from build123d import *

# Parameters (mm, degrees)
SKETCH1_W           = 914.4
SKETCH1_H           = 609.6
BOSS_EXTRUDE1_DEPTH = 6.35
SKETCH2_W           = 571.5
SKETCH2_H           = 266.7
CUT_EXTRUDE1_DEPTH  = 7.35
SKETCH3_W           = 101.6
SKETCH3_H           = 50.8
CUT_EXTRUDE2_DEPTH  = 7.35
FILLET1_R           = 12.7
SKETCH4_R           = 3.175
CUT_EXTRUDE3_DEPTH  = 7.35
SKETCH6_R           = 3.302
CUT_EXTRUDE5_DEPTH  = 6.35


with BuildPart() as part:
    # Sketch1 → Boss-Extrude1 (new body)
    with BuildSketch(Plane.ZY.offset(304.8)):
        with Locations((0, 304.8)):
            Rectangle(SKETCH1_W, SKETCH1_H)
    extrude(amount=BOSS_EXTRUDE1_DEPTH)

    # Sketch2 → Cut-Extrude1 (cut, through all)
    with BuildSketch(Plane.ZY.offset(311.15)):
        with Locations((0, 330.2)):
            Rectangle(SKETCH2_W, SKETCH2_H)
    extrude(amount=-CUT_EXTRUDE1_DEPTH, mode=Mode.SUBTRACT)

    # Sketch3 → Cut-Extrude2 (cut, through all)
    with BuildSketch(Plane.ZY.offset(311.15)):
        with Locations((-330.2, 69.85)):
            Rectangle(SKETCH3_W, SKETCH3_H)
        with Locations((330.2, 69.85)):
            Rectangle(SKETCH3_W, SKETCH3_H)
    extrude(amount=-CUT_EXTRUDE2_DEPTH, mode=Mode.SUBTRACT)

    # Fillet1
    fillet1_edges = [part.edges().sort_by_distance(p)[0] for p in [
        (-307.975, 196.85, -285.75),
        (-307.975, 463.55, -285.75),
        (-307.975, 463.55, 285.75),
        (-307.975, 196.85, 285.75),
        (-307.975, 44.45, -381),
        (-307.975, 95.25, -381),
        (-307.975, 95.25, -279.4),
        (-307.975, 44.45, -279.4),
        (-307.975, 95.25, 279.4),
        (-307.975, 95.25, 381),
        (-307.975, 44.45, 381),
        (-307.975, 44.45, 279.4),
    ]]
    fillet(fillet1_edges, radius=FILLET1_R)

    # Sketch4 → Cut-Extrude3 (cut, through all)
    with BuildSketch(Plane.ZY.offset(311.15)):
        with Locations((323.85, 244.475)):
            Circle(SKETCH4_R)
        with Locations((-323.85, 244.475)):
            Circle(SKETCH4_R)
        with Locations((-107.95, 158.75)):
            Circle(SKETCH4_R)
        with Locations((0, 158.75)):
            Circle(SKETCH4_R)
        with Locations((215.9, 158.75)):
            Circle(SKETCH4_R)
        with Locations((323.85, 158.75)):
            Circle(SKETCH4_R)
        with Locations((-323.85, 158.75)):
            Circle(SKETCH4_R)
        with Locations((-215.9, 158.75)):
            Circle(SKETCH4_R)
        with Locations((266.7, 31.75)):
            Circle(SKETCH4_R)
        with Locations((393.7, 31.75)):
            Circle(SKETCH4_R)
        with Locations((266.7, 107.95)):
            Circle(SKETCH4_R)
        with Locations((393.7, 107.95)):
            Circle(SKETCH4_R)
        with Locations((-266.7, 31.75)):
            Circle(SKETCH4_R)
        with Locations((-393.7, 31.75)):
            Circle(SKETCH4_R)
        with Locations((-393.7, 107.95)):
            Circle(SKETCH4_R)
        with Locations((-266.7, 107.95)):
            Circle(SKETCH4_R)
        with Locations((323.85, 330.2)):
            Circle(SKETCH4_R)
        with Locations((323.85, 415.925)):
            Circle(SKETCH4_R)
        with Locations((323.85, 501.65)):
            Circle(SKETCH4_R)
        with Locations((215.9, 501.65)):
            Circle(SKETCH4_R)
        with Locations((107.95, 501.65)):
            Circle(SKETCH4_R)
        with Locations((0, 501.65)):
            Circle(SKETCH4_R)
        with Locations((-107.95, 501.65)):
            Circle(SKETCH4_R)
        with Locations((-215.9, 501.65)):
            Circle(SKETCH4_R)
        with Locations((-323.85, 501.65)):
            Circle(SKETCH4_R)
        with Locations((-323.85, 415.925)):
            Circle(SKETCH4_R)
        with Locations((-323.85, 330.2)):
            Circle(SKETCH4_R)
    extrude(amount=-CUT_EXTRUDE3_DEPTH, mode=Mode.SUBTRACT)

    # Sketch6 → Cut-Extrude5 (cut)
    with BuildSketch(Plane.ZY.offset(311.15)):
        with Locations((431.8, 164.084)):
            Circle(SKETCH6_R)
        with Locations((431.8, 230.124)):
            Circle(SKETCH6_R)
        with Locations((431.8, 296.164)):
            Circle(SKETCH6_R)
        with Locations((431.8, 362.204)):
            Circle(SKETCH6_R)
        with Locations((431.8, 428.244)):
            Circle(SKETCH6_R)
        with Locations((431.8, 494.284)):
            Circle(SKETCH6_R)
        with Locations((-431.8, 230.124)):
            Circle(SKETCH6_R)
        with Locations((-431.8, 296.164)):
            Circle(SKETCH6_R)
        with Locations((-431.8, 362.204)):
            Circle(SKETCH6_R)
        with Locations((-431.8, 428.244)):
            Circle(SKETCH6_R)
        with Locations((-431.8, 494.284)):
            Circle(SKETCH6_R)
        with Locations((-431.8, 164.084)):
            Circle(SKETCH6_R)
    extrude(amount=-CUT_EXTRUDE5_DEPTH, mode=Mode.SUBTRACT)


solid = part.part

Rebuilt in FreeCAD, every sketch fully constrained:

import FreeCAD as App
import Part
import Sketcher
from FreeCAD import Vector
Q = App.Units.Quantity


def edges_at(feature, points):
    """Names of the edges that pass closest to the given points."""
    edges = feature.Shape.Edges
    near = lambda p: min(range(len(edges)), key=lambda i: edges[i].distToShape(Part.Vertex(*p))[0])
    return sorted({f"Edge{near(p) + 1}" for p in points})


def add_polygon(sketch, points):
    """Adds a closed chain of lines whose ends are joined by coincident constraints."""
    first, n = sketch.GeometryCount, len(points)
    for a, b in zip(points, points[1:] + points[:1]):
        sketch.addGeometry(Part.LineSegment(App.Vector(*a, 0), App.Vector(*b, 0)), False)
    for i in range(n):
        sketch.addConstraint(Sketcher.Constraint("Coincident", first + i, 2, first + (i + 1) % n, 1))

doc = App.newDocument("Part")
body = doc.addObject("PartDesign::Body", "Body")

# Sketch on YZ plane
sketch1 = body.newObject("Sketcher::SketchObject", "Sketch")
sketch1.AttachmentSupport = (doc.getObject("YZ_Plane"), [""])
sketch1.MapMode = "FlatFace"
sketch1.AttachmentOffset = App.Placement(Vector(0, 0, -12 * 25.4), App.Rotation())
add_polygon(sketch1, [(610, -457), (0, -457), (0, 457), (610, 457)])  # lines 0-3
sketch1.addConstraint([
    Sketcher.Constraint("Horizontal", 0),
    Sketcher.Constraint("Vertical", 1),
    Sketcher.Constraint("Horizontal", 2),
    Sketcher.Constraint("Vertical", 3),
    Sketcher.Constraint("Symmetric", 0, 2, 1, 2, -1, 1),
    Sketcher.Constraint("DistanceX", 0, 2, 0, 1, Q("24 in")),
    Sketcher.Constraint("DistanceY", 1, 1, 1, 2, Q("36 in")),
])
pad1 = body.newObject("PartDesign::Pad", "Pad")
pad1.Profile = sketch1
pad1.Length = Q("0.25 in")
pad1.Reversed = True

# Sketch on YZ plane
sketch2 = body.newObject("Sketcher::SketchObject", "Sketch001")
sketch2.AttachmentSupport = (doc.getObject("YZ_Plane"), [""])
sketch2.MapMode = "FlatFace"
sketch2.AttachmentOffset = App.Placement(Vector(0, 0, -12.25 * 25.4), App.Rotation())
add_polygon(sketch2, [(464, -286), (197, -286), (197, 286), (464, 286)])  # lines 0-3
sketch2.addConstraint([
    Sketcher.Constraint("Horizontal", 0),
    Sketcher.Constraint("Vertical", 1),
    Sketcher.Constraint("Horizontal", 2),
    Sketcher.Constraint("Vertical", 3),
    Sketcher.Constraint("DistanceX", 0, 2, 0, 1, Q("10.5 in")),
    Sketcher.Constraint("DistanceY", 1, 1, 1, 2, Q("22.5 in")),
    Sketcher.Constraint("DistanceX", -1, 1, 0, 2, Q("7.75 in")),
    Sketcher.Constraint("DistanceY", 0, 2, -1, 1, Q("11.25 in")),
])
pocket1 = body.newObject("PartDesign::Pocket", "Pocket")
pocket1.Profile = sketch2
pocket1.Type = "ThroughAll"
pocket1.Reversed = True

# Sketch on YZ plane
sketch3 = body.newObject("Sketcher::SketchObject", "Sketch002")
sketch3.AttachmentSupport = (doc.getObject("YZ_Plane"), [""])
sketch3.MapMode = "FlatFace"
sketch3.AttachmentOffset = App.Placement(Vector(0, 0, -12.25 * 25.4), App.Rotation())
add_polygon(sketch3, [(95, -381), (44, -381), (44, -279), (95, -279)])  # lines 0-3
add_polygon(sketch3, [(95, 279), (44, 279), (44, 381), (95, 381)])  # lines 4-7
sketch3.addConstraint([
    Sketcher.Constraint("Horizontal", 0),
    Sketcher.Constraint("Vertical", 1),
    Sketcher.Constraint("Horizontal", 2),
    Sketcher.Constraint("Vertical", 3),
    Sketcher.Constraint("Horizontal", 4),
    Sketcher.Constraint("Vertical", 5),
    Sketcher.Constraint("Horizontal", 6),
    Sketcher.Constraint("Vertical", 7),
    Sketcher.Constraint("Symmetric", 1, 2, 4, 2, -1),
    Sketcher.Constraint("Symmetric", 3, 2, 6, 2, -1),
    Sketcher.Constraint("DistanceX", 0, 2, 0, 1, Q("2 in")),
    Sketcher.Constraint("DistanceY", 1, 1, 1, 2, Q("4 in")),
    Sketcher.Constraint("DistanceY", 0, 2, -1, 1, Q("15 in")),
    Sketcher.Constraint("DistanceX", -1, 1, 0, 2, Q("1.75 in")),
])
pocket2 = body.newObject("PartDesign::Pocket", "Pocket001")
pocket2.Profile = sketch3
pocket2.Type = "ThroughAll"
pocket2.Reversed = True
doc.recompute()

fillet = body.newObject("PartDesign::Fillet", "Fillet")
fillet.Base = (pocket2, edges_at(pocket2, [
    (-307.975, 196.85, -285.75),
    (-307.975, 463.55, -285.75),
    (-307.975, 463.55, 285.75),
    (-307.975, 196.85, 285.75),
    (-307.975, 44.45, -381),
    (-307.975, 95.25, -381),
    (-307.975, 95.25, -279.4),
    (-307.975, 44.45, -279.4),
    (-307.975, 95.25, 279.4),
    (-307.975, 95.25, 381),
    (-307.975, 44.45, 381),
    (-307.975, 44.45, 279.4),
]))
fillet.Radius = Q("0.5 in")

# Sketch on YZ plane
sketch4 = body.newObject("Sketcher::SketchObject", "Sketch003")
sketch4.AttachmentSupport = (doc.getObject("YZ_Plane"), [""])
sketch4.MapMode = "FlatFace"
sketch4.AttachmentOffset = App.Placement(Vector(0, 0, -12.25 * 25.4), App.Rotation())
sketch4.addGeometry([
    Part.Circle(Vector(244.5, 323.9, 0), Vector(0, 0, 1), 3.2),  # 0
    Part.Circle(Vector(244.5, -323.9, 0), Vector(0, 0, 1), 3.2),  # 1
    Part.Circle(Vector(158.8, -108, 0), Vector(0, 0, 1), 3.2),  # 2
    Part.Circle(Vector(158.8, 0, 0), Vector(0, 0, 1), 3.2),  # 3
    Part.Circle(Vector(158.8, 215.9, 0), Vector(0, 0, 1), 3.2),  # 4
    Part.Circle(Vector(158.8, 323.9, 0), Vector(0, 0, 1), 3.2),  # 5
    Part.Circle(Vector(158.8, -323.9, 0), Vector(0, 0, 1), 3.2),  # 6
    Part.Circle(Vector(158.8, -215.9, 0), Vector(0, 0, 1), 3.2),  # 7
    Part.Circle(Vector(31.8, 266.7, 0), Vector(0, 0, 1), 3.2),  # 8
    Part.Circle(Vector(31.8, 393.7, 0), Vector(0, 0, 1), 3.2),  # 9
    Part.Circle(Vector(108, 266.7, 0), Vector(0, 0, 1), 3.2),  # 10
    Part.Circle(Vector(108, 393.7, 0), Vector(0, 0, 1), 3.2),  # 11
    Part.Circle(Vector(31.8, -266.7, 0), Vector(0, 0, 1), 3.2),  # 12
    Part.Circle(Vector(31.8, -393.7, 0), Vector(0, 0, 1), 3.2),  # 13
    Part.Circle(Vector(108, -393.7, 0), Vector(0, 0, 1), 3.2),  # 14
    Part.Circle(Vector(108, -266.7, 0), Vector(0, 0, 1), 3.2),  # 15
    Part.Circle(Vector(330.2, 323.9, 0), Vector(0, 0, 1), 3.2),  # 16
    Part.Circle(Vector(415.9, 323.9, 0), Vector(0, 0, 1), 3.2),  # 17
    Part.Circle(Vector(501.6, 323.9, 0), Vector(0, 0, 1), 3.2),  # 18
    Part.Circle(Vector(501.6, 215.9, 0), Vector(0, 0, 1), 3.2),  # 19
    Part.Circle(Vector(501.6, 108, 0), Vector(0, 0, 1), 3.2),  # 20
    Part.Circle(Vector(501.6, 0, 0), Vector(0, 0, 1), 3.2),  # 21
    Part.Circle(Vector(501.6, -108, 0), Vector(0, 0, 1), 3.2),  # 22
    Part.Circle(Vector(501.6, -215.9, 0), Vector(0, 0, 1), 3.2),  # 23
    Part.Circle(Vector(501.6, -323.9, 0), Vector(0, 0, 1), 3.2),  # 24
    Part.Circle(Vector(415.9, -323.9, 0), Vector(0, 0, 1), 3.2),  # 25
    Part.Circle(Vector(330.2, -323.9, 0), Vector(0, 0, 1), 3.2),  # 26
], False)
sketch4.addConstraint([
    Sketcher.Constraint("Equal", 0, 1),
    Sketcher.Constraint("Equal", 1, 2),
    Sketcher.Constraint("Equal", 2, 3),
    Sketcher.Constraint("Equal", 3, 4),
    Sketcher.Constraint("Equal", 4, 5),
    Sketcher.Constraint("Equal", 5, 6),
    Sketcher.Constraint("Equal", 6, 7),
    Sketcher.Constraint("Equal", 7, 8),
    Sketcher.Constraint("Equal", 8, 9),
    Sketcher.Constraint("Equal", 9, 10),
    Sketcher.Constraint("Equal", 10, 11),
    Sketcher.Constraint("Equal", 11, 12),
    Sketcher.Constraint("Equal", 12, 13),
    Sketcher.Constraint("Equal", 13, 14),
    Sketcher.Constraint("Equal", 14, 15),
    Sketcher.Constraint("Equal", 15, 16),
    Sketcher.Constraint("Equal", 16, 17),
    Sketcher.Constraint("Equal", 17, 18),
    Sketcher.Constraint("Equal", 18, 19),
    Sketcher.Constraint("Equal", 19, 20),
    Sketcher.Constraint("Equal", 20, 21),
    Sketcher.Constraint("Equal", 21, 22),
    Sketcher.Constraint("Equal", 22, 23),
    Sketcher.Constraint("Equal", 23, 24),
    Sketcher.Constraint("Equal", 24, 25),
    Sketcher.Constraint("Equal", 25, 26),
    Sketcher.Constraint("Symmetric", 0, 3, 1, 3, -1),
    Sketcher.Constraint("Symmetric", 5, 3, 6, 3, -1),
    Sketcher.Constraint("Symmetric", 4, 3, 7, 3, -1),
    Sketcher.Constraint("Symmetric", 8, 3, 12, 3, -1),
    Sketcher.Constraint("Symmetric", 9, 3, 13, 3, -1),
    Sketcher.Constraint("Symmetric", 11, 3, 14, 3, -1),
    Sketcher.Constraint("Symmetric", 10, 3, 15, 3, -1),
    Sketcher.Constraint("Symmetric", 20, 3, 22, 3, -1),
    Sketcher.Constraint("Symmetric", 19, 3, 23, 3, -1),
    Sketcher.Constraint("Symmetric", 18, 3, 24, 3, -1),
    Sketcher.Constraint("Symmetric", 17, 3, 25, 3, -1),
    Sketcher.Constraint("Symmetric", 16, 3, 26, 3, -1),
    Sketcher.Constraint("PointOnObject", 3, 3, -1),
    Sketcher.Constraint("PointOnObject", 21, 3, -1),
    Sketcher.Constraint("Horizontal", 0, 3, 5, 3),
    Sketcher.Constraint("Horizontal", 8, 3, 10, 3),
    Sketcher.Constraint("Horizontal", 9, 3, 11, 3),
    Sketcher.Constraint("Horizontal", 5, 3, 16, 3),
    Sketcher.Constraint("Horizontal", 16, 3, 17, 3),
    Sketcher.Constraint("Horizontal", 17, 3, 18, 3),
    Sketcher.Constraint("Horizontal", 4, 3, 19, 3),
    Sketcher.Constraint("Horizontal", 2, 3, 22, 3),
    Sketcher.Constraint("Vertical", 2, 3, 3, 3),
    Sketcher.Constraint("Vertical", 3, 3, 4, 3),
    Sketcher.Constraint("Vertical", 4, 3, 5, 3),
    Sketcher.Constraint("Vertical", 8, 3, 9, 3),
    Sketcher.Constraint("Vertical", 10, 3, 11, 3),
    Sketcher.Constraint("Vertical", 18, 3, 19, 3),
    Sketcher.Constraint("Vertical", 19, 3, 20, 3),
    Sketcher.Constraint("Vertical", 20, 3, 21, 3),
    Sketcher.Constraint("Diameter", 0, Q("0.25 in")),
    Sketcher.Constraint("DistanceX", -1, 1, 16, 3, Q("13 in")),
    Sketcher.Constraint("DistanceY", 2, 3, 0, 3, Q("17 in")),
    Sketcher.Constraint("DistanceY", 7, 3, 4, 3, Q("17 in")),
    Sketcher.Constraint("DistanceX", 8, 3, 4, 3, Q("5 in")),
    Sketcher.Constraint("DistanceY", 4, 3, 8, 3, Q("2 in")),
    Sketcher.Constraint("DistanceY", 8, 3, 9, 3, Q("5 in")),
    Sketcher.Constraint("DistanceX", 10, 3, 4, 3, Q("2 in")),
    Sketcher.Constraint("DistanceY", 1, 3, 0, 3, Q("25.5 in")),
    Sketcher.Constraint("DistanceX", 5, 3, 18, 3, Q("13.5 in")),
    Sketcher.Constraint("DistanceX", -1, 1, 2, 3, Q("6.25 in")),
    Sketcher.Constraint("DistanceX", 0, 3, 17, 3, Q("6.75 in")),
    Sketcher.Constraint("DistanceX", -1, 1, 0, 3, Q("9.625 in")),
])
pocket3 = body.newObject("PartDesign::Pocket", "Pocket002")
pocket3.Profile = sketch4
pocket3.Type = "ThroughAll"
pocket3.Reversed = True

# Sketch on YZ plane
sketch5 = body.newObject("Sketcher::SketchObject", "Sketch004")
sketch5.AttachmentSupport = (doc.getObject("YZ_Plane"), [""])
sketch5.MapMode = "FlatFace"
sketch5.AttachmentOffset = App.Placement(Vector(0, 0, -12.25 * 25.4), App.Rotation())
sketch5.addGeometry([
    Part.Circle(Vector(164.1, 431.8, 0), Vector(0, 0, 1), 3.3),  # 0
    Part.Circle(Vector(230.1, 431.8, 0), Vector(0, 0, 1), 3.3),  # 1
    Part.Circle(Vector(296.2, 431.8, 0), Vector(0, 0, 1), 3.3),  # 2
    Part.Circle(Vector(362.2, 431.8, 0), Vector(0, 0, 1), 3.3),  # 3
    Part.Circle(Vector(428.2, 431.8, 0), Vector(0, 0, 1), 3.3),  # 4
    Part.Circle(Vector(494.3, 431.8, 0), Vector(0, 0, 1), 3.3),  # 5
    Part.Circle(Vector(230.1, -431.8, 0), Vector(0, 0, 1), 3.3),  # 6
    Part.Circle(Vector(296.2, -431.8, 0), Vector(0, 0, 1), 3.3),  # 7
    Part.Circle(Vector(362.2, -431.8, 0), Vector(0, 0, 1), 3.3),  # 8
    Part.Circle(Vector(428.2, -431.8, 0), Vector(0, 0, 1), 3.3),  # 9
    Part.Circle(Vector(494.3, -431.8, 0), Vector(0, 0, 1), 3.3),  # 10
    Part.Circle(Vector(164.1, -431.8, 0), Vector(0, 0, 1), 3.3),  # 11
], False)
sketch5.addConstraint([
    Sketcher.Constraint("Equal", 0, 1),
    Sketcher.Constraint("Equal", 1, 2),
    Sketcher.Constraint("Equal", 2, 3),
    Sketcher.Constraint("Equal", 3, 4),
    Sketcher.Constraint("Equal", 4, 5),
    Sketcher.Constraint("Equal", 5, 6),
    Sketcher.Constraint("Equal", 6, 7),
    Sketcher.Constraint("Equal", 7, 8),
    Sketcher.Constraint("Equal", 8, 9),
    Sketcher.Constraint("Equal", 9, 10),
    Sketcher.Constraint("Equal", 10, 11),
    Sketcher.Constraint("Symmetric", 1, 3, 6, 3, -1),
    Sketcher.Constraint("Symmetric", 2, 3, 7, 3, -1),
    Sketcher.Constraint("Symmetric", 3, 3, 8, 3, -1),
    Sketcher.Constraint("Symmetric", 4, 3, 9, 3, -1),
    Sketcher.Constraint("Symmetric", 5, 3, 10, 3, -1),
    Sketcher.Constraint("Symmetric", 0, 3, 11, 3, -1),
    Sketcher.Constraint("Horizontal", 0, 3, 1, 3),
    Sketcher.Constraint("Horizontal", 1, 3, 2, 3),
    Sketcher.Constraint("Horizontal", 2, 3, 3, 3),
    Sketcher.Constraint("Horizontal", 3, 3, 4, 3),
    Sketcher.Constraint("Horizontal", 4, 3, 5, 3),
    Sketcher.Constraint("Diameter", 0, Q("0.26 in")),
    Sketcher.Constraint("DistanceY", -1, 1, 0, 3, Q("17 in")),
    Sketcher.Constraint("DistanceX", 0, 3, 5, 3, Q("13 in")),
    Sketcher.Constraint("DistanceX", 0, 3, 1, 3, Q("2.6 in")),
    Sketcher.Constraint("DistanceX", 1, 3, 2, 3, Q("2.6 in")),
    Sketcher.Constraint("DistanceX", 2, 3, 3, 3, Q("2.6 in")),
    Sketcher.Constraint("DistanceX", 3, 3, 4, 3, Q("2.6 in")),
    Sketcher.Constraint("DistanceX", -1, 1, 0, 3, Q("6.46 in")),
])
pocket4 = body.newObject("PartDesign::Pocket", "Pocket003")
pocket4.Profile = sketch5
pocket4.Length = Q("0.25 in")
pocket4.Reversed = True

doc.recompute()
